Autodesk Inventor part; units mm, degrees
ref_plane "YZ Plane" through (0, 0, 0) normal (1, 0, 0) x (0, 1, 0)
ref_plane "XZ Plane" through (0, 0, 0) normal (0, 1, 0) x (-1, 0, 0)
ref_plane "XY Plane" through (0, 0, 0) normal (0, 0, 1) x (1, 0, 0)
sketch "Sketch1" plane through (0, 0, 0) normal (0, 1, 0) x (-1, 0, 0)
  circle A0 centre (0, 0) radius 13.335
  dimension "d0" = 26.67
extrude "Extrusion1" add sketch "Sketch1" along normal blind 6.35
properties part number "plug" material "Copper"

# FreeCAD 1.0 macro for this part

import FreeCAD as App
import Part
import Sketcher

V = App.Vector
Q = App.Units.Quantity

doc = App.newDocument("Part")
params = doc.addObject("Spreadsheet::Sheet", "Params")
for row, (alias, value) in enumerate([
    ("sketch1_diameter", "1.05 in"),
    ("pad1_length", "0.25 in"),
], start=1):
    params.set(f"A{row}", alias)
    params.set(f"B{row}", "=" + value)
    params.setAlias(f"B{row}", alias)

body = doc.addObject("PartDesign::Body", "Body")

# Sketch on XZ plane
sketch1 = doc.addObject("Sketcher::SketchObject", "Sketch")
body.addObject(sketch1)
sketch1.AttachmentSupport = (doc.XZ_Plane, [""])
sketch1.MapMode = "FlatFace"
sketch1.addGeometry(Part.Circle(V(0, 0, 0), V(0, 0, 1), 13), False)
sketch1.addConstraint(Sketcher.Constraint("Coincident", 0, 3, -1, 1))
sketch1.addConstraint(Sketcher.Constraint("Diameter", 0, Q("1.05 in")))
sketch1.setExpression("Constraints[1]", "Params.sketch1_diameter")
pad1 = doc.addObject("PartDesign::Pad", "Pad")
body.addObject(pad1)
pad1.Profile = sketch1
pad1.setExpression("Length", "Params.pad1_length")
pad1.Reversed = True

doc.recompute()
